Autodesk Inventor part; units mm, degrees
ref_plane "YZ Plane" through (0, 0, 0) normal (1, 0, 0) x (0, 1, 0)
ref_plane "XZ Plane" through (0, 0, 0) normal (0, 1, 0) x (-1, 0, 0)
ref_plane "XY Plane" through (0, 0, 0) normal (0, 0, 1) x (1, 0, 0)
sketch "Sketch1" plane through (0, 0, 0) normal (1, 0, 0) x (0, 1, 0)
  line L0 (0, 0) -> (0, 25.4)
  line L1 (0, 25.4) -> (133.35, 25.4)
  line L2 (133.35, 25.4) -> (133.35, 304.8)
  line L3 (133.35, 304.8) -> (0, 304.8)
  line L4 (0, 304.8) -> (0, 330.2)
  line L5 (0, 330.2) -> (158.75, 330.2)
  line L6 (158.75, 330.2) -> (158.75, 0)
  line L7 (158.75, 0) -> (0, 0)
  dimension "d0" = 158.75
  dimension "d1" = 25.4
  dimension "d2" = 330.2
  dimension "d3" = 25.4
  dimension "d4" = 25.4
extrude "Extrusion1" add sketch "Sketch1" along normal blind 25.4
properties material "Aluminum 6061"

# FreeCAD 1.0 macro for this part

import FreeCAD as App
import Part
import Sketcher
from FreeCAD import Vector
Q = App.Units.Quantity


def add_polygon(sketch, points):
    """Adds a closed chain of lines whose ends are joined by coincident constraints."""
    first, n = sketch.GeometryCount, len(points)
    for a, b in zip(points, points[1:] + points[:1]):
        sketch.addGeometry(Part.LineSegment(App.Vector(*a, 0), App.Vector(*b, 0)), False)
    for i in range(n):
        sketch.addConstraint(Sketcher.Constraint("Coincident", first + i, 2, first + (i + 1) % n, 1))

doc = App.newDocument("Part")
params = doc.addObject("Spreadsheet::Sheet", "Params")
for row, (alias, value) in enumerate([
    ("sketch1_height", "1 in"),
    ("sketch1_height2", "13 in"),
    ("sketch1_width", "6.25 in"),
    ("pad1_length", "1 in"),
], start=1):
    params.set(f"A{row}", alias)
    params.set(f"B{row}", "=" + value)
    params.setAlias(f"B{row}", alias)

body = doc.addObject("PartDesign::Body", "Body")

sketch1 = body.newObject("Sketcher::SketchObject", "Sketch")
sketch1.AttachmentSupport = (doc.getObject("YZ_Plane"), [""])
sketch1.MapMode = "FlatFace"
add_polygon(sketch1, [(0, 25), (0, 0), (159, 0), (159, 330), (0, 330), (0, 305), (133, 305), (133, 25)])
sketch1.addConstraint(Sketcher.Constraint("Vertical", 0))
sketch1.addConstraint(Sketcher.Constraint("Horizontal", 1))
sketch1.addConstraint(Sketcher.Constraint("Vertical", 2))
sketch1.addConstraint(Sketcher.Constraint("Horizontal", 3))
sketch1.addConstraint(Sketcher.Constraint("Vertical", 4))
sketch1.addConstraint(Sketcher.Constraint("Horizontal", 5))
sketch1.addConstraint(Sketcher.Constraint("Vertical", 6))
sketch1.addConstraint(Sketcher.Constraint("Horizontal", 7))
sketch1.addConstraint(Sketcher.Constraint("Coincident", 0, 2, -1, 1))
sketch1.addConstraint(Sketcher.Constraint("PointOnObject", 3, 2, -2))
sketch1.addConstraint(Sketcher.Constraint("Equal", 0, 4))
sketch1.addConstraint(Sketcher.Constraint("DistanceY", 0, 2, 0, 1, Q("1 in")))
sketch1.addConstraint(Sketcher.Constraint("DistanceY", 2, 1, 2, 2, Q("13 in")))
sketch1.addConstraint(Sketcher.Constraint("DistanceX", 5, 2, 2, 2, Q("1 in")))
sketch1.addConstraint(Sketcher.Constraint("DistanceX", 1, 1, 1, 2, Q("6.25 in")))
sketch1.setExpression("Constraints[19]", "Params.sketch1_height")
sketch1.setExpression("Constraints[20]", "Params.sketch1_height2")
sketch1.setExpression("Constraints[22]", "Params.sketch1_width")
pad1 = body.newObject("PartDesign::Pad", "Pad")
pad1.Profile = sketch1
pad1.setExpression("Length", "Params.pad1_length")

doc.recompute()
